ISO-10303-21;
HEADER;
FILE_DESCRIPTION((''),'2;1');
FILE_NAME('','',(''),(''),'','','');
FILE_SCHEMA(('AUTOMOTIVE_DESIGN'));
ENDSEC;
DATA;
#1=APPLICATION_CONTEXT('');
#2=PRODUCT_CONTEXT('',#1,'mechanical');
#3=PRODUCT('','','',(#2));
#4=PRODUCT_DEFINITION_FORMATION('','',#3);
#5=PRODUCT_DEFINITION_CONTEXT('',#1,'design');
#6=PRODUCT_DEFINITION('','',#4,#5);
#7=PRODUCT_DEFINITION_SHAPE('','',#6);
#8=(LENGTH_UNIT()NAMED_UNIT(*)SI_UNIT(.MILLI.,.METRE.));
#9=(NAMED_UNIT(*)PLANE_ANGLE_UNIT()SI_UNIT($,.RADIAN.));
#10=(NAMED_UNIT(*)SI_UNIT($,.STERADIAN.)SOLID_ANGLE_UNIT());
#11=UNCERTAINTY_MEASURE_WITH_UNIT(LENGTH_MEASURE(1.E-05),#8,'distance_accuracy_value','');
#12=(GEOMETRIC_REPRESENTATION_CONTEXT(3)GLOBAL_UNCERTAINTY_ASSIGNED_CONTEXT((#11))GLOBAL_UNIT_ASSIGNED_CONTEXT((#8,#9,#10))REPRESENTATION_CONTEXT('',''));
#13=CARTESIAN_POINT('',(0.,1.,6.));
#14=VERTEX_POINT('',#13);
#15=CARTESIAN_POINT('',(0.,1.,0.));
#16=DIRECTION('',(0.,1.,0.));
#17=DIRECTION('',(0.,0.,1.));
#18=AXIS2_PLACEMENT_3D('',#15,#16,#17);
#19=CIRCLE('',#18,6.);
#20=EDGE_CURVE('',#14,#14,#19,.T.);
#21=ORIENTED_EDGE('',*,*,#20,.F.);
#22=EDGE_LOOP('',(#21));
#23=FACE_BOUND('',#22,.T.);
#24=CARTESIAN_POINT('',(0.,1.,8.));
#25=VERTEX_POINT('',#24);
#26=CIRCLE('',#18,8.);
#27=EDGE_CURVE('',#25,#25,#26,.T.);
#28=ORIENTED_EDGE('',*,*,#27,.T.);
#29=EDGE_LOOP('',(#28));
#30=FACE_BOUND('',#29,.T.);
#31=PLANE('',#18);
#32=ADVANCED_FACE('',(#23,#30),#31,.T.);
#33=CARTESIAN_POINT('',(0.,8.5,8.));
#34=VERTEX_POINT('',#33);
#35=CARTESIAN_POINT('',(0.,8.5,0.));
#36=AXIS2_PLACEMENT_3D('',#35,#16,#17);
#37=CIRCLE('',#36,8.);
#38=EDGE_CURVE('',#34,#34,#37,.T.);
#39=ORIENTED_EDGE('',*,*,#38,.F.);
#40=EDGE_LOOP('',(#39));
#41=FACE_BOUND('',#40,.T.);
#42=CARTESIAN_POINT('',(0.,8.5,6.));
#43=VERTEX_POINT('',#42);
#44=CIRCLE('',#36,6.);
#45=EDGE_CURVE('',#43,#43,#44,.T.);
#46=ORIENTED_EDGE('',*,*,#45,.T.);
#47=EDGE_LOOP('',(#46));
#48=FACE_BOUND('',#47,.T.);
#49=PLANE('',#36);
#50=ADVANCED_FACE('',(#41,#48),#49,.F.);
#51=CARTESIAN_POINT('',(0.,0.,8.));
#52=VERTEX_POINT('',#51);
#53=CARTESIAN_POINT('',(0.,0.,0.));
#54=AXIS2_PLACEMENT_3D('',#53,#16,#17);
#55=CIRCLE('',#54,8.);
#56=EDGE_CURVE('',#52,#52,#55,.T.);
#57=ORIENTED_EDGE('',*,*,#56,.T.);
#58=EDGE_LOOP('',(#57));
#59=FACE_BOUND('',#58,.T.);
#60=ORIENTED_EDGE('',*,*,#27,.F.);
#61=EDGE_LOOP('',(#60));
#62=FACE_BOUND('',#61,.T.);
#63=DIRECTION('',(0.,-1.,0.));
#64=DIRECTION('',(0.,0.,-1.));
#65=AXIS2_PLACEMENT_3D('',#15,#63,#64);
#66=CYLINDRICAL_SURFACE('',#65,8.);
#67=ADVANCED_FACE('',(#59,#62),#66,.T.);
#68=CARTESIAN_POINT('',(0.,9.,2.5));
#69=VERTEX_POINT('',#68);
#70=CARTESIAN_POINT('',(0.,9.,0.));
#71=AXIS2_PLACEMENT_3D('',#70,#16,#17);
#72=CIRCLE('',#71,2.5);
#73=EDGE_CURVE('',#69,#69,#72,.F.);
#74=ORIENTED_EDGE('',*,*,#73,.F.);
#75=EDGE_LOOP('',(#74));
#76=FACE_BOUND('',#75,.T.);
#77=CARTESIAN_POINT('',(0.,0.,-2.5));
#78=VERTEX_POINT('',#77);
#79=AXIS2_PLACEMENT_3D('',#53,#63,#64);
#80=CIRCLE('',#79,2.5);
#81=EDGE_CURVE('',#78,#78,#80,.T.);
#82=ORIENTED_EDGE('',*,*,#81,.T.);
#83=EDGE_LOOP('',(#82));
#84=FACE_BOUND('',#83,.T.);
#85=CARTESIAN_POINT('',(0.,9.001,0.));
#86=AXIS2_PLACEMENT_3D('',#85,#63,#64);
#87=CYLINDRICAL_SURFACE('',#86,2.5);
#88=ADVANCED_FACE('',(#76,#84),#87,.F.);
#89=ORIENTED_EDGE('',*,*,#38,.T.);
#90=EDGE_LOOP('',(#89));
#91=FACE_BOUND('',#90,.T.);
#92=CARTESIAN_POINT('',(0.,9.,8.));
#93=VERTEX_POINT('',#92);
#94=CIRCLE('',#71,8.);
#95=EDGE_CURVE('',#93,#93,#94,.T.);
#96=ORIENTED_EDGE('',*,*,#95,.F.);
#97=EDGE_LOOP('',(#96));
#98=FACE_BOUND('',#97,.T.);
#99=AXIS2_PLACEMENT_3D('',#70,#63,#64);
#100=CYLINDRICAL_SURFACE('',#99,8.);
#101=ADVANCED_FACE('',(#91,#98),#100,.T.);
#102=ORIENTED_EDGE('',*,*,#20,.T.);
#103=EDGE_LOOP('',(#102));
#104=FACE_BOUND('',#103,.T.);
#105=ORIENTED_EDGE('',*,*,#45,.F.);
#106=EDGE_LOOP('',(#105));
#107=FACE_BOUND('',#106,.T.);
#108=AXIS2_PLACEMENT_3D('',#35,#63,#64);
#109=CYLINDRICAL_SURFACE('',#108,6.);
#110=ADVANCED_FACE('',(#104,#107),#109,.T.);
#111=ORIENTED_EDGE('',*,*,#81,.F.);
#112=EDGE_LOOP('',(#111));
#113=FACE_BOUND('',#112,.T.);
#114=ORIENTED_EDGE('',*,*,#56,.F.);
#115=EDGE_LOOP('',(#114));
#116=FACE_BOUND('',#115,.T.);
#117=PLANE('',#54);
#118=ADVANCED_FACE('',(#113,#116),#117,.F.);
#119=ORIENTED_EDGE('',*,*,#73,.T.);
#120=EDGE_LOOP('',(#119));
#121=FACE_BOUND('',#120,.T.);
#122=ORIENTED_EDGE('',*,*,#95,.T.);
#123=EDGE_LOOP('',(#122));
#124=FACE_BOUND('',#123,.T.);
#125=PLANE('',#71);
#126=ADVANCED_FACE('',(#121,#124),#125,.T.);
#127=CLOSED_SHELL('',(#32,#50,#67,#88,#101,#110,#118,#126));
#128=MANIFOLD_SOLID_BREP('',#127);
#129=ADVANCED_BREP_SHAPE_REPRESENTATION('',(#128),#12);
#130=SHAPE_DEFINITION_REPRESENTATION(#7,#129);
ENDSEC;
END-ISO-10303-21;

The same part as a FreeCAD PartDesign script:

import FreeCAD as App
import Part
import Sketcher
Q = App.Units.Quantity

doc = App.newDocument("Part")
body = doc.addObject("PartDesign::Body", "Body")

# Sketch on XZ plane
sketch1 = body.newObject("Sketcher::SketchObject", "Sketch")
sketch1.AttachmentSupport = (doc.getObject("XZ_Plane"), [""])
sketch1.MapMode = "FlatFace"
sketch1.addGeometry(Part.Circle(App.Vector(0, 0, 0), App.Vector(0, 0, 1), 8), False)
sketch1.addConstraint([
    Sketcher.Constraint("Coincident", 0, 3, -1, 1),
    Sketcher.Constraint("Diameter", 0, Q("16 mm")),
])
pad1 = body.newObject("PartDesign::Pad", "Pad")
pad1.Profile = sketch1
pad1.Length = 1
pad1.Reversed = True

# Sketch on XZ plane
sketch2 = body.newObject("Sketcher::SketchObject", "Sketch001")
sketch2.AttachmentSupport = (doc.getObject("XZ_Plane"), [""])
sketch2.MapMode = "FlatFace"
sketch2.AttachmentOffset = App.Placement(App.Vector(0, 0, -1), App.Rotation())
sketch2.addGeometry(Part.Circle(App.Vector(0, 0, 0), App.Vector(0, 0, 1), 6), False)
sketch2.addConstraint([
    Sketcher.Constraint("Coincident", 0, 3, -1, 1),
    Sketcher.Constraint("Diameter", 0, Q("12 mm")),
])
pad2 = body.newObject("PartDesign::Pad", "Pad001")
pad2.Profile = sketch2
pad2.Length = 7.5
pad2.Reversed = True

# Sketch on XZ plane
sketch3 = body.newObject("Sketcher::SketchObject", "Sketch002")
sketch3.AttachmentSupport = (doc.getObject("XZ_Plane"), [""])
sketch3.MapMode = "FlatFace"
sketch3.AttachmentOffset = App.Placement(App.Vector(0, 0, -8.5), App.Rotation())
sketch3.addGeometry(Part.Circle(App.Vector(0, 0, 0), App.Vector(0, 0, 1), 8), False)
sketch3.addConstraint([
    Sketcher.Constraint("Coincident", 0, 3, -1, 1),
    Sketcher.Constraint("Diameter", 0, Q("16 mm")),
])
pad3 = body.newObject("PartDesign::Pad", "Pad002")
pad3.Profile = sketch3
pad3.Length = 0.5
pad3.Reversed = True

# Sketch on XZ plane
sketch4 = body.newObject("Sketcher::SketchObject", "Sketch003")
sketch4.AttachmentSupport = (doc.getObject("XZ_Plane"), [""])
sketch4.MapMode = "FlatFace"
sketch4.addGeometry(Part.Circle(App.Vector(0, 0, 0), App.Vector(0, 0, 1), 2.5), False)
sketch4.addConstraint([
    Sketcher.Constraint("Coincident", 0, 3, -1, 1),
    Sketcher.Constraint("Diameter", 0, Q("5 mm")),
])
pocket1 = body.newObject("PartDesign::Pocket", "Pocket")
pocket1.Profile = sketch4
pocket1.Type = "UpToFirst"

doc.recompute()
